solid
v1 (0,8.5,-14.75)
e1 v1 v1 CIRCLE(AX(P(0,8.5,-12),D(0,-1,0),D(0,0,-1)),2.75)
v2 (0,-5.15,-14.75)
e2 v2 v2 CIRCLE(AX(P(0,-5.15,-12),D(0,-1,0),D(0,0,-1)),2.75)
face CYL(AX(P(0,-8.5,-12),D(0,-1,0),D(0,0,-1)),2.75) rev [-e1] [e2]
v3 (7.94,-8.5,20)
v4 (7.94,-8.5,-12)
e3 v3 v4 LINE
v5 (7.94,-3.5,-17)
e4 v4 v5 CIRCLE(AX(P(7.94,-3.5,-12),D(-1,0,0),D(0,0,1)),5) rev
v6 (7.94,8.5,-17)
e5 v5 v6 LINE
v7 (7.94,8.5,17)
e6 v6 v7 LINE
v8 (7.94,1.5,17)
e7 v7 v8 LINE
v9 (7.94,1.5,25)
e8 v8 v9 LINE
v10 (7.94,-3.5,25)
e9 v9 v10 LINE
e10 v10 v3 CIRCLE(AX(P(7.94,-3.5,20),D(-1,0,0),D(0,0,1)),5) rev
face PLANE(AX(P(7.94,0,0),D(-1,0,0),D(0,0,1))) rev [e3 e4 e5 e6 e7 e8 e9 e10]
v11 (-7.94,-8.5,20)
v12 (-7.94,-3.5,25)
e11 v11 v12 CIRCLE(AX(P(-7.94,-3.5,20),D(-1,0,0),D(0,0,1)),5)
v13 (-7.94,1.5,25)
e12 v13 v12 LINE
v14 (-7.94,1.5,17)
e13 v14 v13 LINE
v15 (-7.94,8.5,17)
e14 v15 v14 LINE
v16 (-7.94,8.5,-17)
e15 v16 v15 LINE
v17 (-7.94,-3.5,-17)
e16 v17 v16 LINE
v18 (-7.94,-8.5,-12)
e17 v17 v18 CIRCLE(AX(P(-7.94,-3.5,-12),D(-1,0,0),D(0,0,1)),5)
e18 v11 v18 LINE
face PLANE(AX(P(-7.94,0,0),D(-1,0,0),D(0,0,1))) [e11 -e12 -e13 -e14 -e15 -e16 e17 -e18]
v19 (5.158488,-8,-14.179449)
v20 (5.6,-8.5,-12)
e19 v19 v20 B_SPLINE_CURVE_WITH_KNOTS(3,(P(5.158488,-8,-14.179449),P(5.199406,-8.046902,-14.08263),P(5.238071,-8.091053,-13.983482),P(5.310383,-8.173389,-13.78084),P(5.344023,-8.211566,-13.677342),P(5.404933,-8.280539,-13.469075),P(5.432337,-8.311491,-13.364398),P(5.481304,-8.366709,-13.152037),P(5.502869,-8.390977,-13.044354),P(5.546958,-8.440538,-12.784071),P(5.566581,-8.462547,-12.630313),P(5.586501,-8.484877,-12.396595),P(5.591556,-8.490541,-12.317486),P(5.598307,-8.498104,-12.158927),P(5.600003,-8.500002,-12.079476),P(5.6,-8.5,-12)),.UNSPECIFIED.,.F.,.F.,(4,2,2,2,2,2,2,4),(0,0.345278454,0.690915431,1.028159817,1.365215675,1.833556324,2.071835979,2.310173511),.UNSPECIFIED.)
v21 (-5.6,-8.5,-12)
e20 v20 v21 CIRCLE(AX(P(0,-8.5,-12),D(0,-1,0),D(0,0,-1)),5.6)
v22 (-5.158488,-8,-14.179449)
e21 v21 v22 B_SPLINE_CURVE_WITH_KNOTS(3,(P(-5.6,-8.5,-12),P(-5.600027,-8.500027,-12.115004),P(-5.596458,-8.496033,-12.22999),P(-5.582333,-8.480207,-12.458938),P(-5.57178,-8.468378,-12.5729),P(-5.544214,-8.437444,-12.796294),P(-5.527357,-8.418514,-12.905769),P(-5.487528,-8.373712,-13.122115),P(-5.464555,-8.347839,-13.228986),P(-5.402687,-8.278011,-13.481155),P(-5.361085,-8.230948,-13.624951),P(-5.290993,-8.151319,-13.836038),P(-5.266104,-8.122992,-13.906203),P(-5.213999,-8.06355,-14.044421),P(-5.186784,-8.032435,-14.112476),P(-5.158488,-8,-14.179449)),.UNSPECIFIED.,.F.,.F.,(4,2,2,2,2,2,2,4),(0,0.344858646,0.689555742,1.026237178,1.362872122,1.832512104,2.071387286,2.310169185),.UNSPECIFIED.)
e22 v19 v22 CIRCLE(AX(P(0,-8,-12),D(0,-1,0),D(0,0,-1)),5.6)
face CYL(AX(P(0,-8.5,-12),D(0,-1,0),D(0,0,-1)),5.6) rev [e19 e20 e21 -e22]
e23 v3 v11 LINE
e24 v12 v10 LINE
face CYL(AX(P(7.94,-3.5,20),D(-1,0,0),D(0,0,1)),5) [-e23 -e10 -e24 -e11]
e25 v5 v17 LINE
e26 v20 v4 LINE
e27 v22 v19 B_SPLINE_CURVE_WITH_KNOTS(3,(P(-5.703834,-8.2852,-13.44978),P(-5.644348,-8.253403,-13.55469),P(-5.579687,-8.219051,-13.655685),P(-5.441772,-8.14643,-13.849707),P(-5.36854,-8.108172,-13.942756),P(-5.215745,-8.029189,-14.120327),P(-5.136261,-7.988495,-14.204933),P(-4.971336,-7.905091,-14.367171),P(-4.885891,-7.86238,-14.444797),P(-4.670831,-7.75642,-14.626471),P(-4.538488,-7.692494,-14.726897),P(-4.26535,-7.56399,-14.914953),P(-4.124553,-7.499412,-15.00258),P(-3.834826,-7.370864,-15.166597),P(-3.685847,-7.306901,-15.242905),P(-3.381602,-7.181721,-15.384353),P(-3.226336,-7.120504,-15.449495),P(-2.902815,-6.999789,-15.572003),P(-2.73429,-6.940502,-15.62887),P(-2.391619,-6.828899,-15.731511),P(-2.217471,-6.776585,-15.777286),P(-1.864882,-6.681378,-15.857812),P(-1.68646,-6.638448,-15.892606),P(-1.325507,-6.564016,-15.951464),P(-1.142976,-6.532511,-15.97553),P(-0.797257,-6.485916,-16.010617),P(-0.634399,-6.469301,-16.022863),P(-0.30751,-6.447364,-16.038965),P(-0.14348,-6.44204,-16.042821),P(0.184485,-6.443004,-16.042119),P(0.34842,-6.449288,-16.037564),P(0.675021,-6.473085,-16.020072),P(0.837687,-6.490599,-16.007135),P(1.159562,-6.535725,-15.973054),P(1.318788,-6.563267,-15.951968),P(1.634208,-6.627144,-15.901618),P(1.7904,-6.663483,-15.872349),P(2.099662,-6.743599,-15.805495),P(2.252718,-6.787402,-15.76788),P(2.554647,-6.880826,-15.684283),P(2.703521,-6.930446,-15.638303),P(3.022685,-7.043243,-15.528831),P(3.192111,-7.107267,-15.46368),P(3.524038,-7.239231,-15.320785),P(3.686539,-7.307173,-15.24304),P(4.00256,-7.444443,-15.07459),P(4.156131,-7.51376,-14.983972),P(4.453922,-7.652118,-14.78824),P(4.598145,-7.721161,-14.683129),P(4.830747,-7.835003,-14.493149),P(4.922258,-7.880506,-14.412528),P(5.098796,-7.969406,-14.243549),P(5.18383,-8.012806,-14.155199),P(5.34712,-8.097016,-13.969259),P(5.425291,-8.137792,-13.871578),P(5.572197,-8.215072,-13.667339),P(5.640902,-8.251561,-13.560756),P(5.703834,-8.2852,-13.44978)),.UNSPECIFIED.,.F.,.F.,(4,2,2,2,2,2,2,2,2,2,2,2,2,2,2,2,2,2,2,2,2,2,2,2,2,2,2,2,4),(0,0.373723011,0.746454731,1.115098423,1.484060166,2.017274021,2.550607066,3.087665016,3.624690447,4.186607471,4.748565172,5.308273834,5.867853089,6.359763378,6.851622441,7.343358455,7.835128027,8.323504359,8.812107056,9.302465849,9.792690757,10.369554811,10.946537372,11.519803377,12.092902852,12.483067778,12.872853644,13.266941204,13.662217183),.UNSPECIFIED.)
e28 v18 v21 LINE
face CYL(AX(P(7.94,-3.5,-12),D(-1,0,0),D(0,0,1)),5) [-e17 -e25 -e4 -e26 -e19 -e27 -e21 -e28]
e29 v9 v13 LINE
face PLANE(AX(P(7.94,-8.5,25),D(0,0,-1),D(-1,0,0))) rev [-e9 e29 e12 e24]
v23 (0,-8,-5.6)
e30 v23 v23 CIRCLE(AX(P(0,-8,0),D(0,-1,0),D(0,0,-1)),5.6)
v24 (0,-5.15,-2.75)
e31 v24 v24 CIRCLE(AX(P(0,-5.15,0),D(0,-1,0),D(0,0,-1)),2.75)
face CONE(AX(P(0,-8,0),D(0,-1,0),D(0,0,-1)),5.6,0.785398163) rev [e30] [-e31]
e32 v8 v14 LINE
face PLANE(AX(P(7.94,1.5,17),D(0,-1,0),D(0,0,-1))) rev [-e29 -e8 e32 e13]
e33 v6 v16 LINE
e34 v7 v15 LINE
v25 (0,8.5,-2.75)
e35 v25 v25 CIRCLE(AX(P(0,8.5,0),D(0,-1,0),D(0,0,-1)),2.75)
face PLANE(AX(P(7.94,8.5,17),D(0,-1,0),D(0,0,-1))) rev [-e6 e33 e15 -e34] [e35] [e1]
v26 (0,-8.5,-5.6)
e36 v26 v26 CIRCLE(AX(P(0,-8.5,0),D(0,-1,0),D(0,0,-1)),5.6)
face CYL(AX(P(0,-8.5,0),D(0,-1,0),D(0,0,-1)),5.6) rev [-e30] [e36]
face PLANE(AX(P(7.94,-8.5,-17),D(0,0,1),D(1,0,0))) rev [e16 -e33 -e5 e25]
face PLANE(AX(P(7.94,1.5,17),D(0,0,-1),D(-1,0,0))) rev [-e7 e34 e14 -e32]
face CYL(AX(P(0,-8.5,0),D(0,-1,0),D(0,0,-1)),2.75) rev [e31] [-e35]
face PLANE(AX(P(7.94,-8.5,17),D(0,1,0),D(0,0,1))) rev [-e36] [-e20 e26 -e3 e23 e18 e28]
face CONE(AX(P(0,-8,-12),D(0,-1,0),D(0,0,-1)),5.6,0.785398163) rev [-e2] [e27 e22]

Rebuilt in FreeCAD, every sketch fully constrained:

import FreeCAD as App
import Part
import Sketcher
from FreeCAD import Vector
Q = App.Units.Quantity


def edges_at(feature, points):
    """Names of the edges that pass closest to the given points."""
    edges = feature.Shape.Edges
    near = lambda p: min(range(len(edges)), key=lambda i: edges[i].distToShape(Part.Vertex(*p))[0])
    return sorted({f"Edge{near(p) + 1}" for p in points})

doc = App.newDocument("Part")
body = doc.addObject("PartDesign::Body", "Body")

# Sketch on YZ plane
sketch1 = body.newObject("Sketcher::SketchObject", "Sketch")
sketch1.AttachmentSupport = (doc.getObject("YZ_Plane"), [""])
sketch1.MapMode = "FlatFace"
sketch1.addGeometry([
    Part.LineSegment(Vector(-8, -17, 0), Vector(8, -17, 0)),  # 0
    Part.LineSegment(Vector(8, -17, 0), Vector(8, 17, 0)),  # 1
    Part.LineSegment(Vector(8, 17, 0), Vector(2, 17, 0)),  # 2
    Part.LineSegment(Vector(2, 17, 0), Vector(2, 25, 0)),  # 3
    Part.LineSegment(Vector(2, 25, 0), Vector(-8, 25, 0)),  # 4
    Part.LineSegment(Vector(-8, 25, 0), Vector(-8, -17, 0)),  # 5
], False)
sketch1.addConstraint([
    Sketcher.Constraint("Coincident", 0, 2, 1, 1),
    Sketcher.Constraint("Coincident", 1, 2, 2, 1),
    Sketcher.Constraint("Coincident", 2, 2, 3, 1),
    Sketcher.Constraint("Coincident", 3, 2, 4, 1),
    Sketcher.Constraint("Coincident", 4, 2, 5, 1),
    Sketcher.Constraint("Coincident", 5, 2, 0, 1),
    Sketcher.Constraint("Horizontal", 0),
    Sketcher.Constraint("Vertical", 1),
    Sketcher.Constraint("Horizontal", 2),
    Sketcher.Constraint("Vertical", 3),
    Sketcher.Constraint("Horizontal", 4),
    Sketcher.Constraint("Vertical", 5),
    Sketcher.Constraint("Symmetric", 1, 2, 5, 2, -1, 1),
    Sketcher.Constraint("DistanceX", 0, 1, 0, 2, Q("17 mm")),
    Sketcher.Constraint("DistanceX", 2, 2, 2, 1, Q("7 mm")),
    Sketcher.Constraint("DistanceY", 1, 1, 1, 2, Q("34 mm")),
    Sketcher.Constraint("DistanceY", 3, 1, 3, 2, Q("8 mm")),
])
pad1 = body.newObject("PartDesign::Pad", "Pad")
pad1.Profile = sketch1
pad1.Length = 15.88
pad1.Midplane = True
doc.recompute()

fillet = body.newObject("PartDesign::Fillet", "Fillet")
fillet.Base = (pad1, edges_at(pad1, [(0, -8.5, -17), (0, -8.5, 25)]))
fillet.Radius = 5

# Sketch on YZ plane
sketch2 = body.newObject("Sketcher::SketchObject", "Sketch001")
sketch2.AttachmentSupport = (doc.getObject("YZ_Plane"), [""])
sketch2.MapMode = "FlatFace"
sketch2.addGeometry([
    Part.LineSegment(Vector(23.2, -12, 0), Vector(-8.5, -12, 0)),  # 0
    Part.LineSegment(Vector(-8.5, -12, 0), Vector(-8.5, -17.6, 0)),  # 1
    Part.LineSegment(Vector(-8.5, -17.6, 0), Vector(-8, -17.6, 0)),  # 2
    Part.LineSegment(Vector(-8, -17.6, 0), Vector(-5.2, -14.8, 0)),  # 3
    Part.LineSegment(Vector(-5.2, -14.8, 0), Vector(21.5, -14.8, 0)),  # 4
    Part.LineSegment(Vector(21.5, -14.8, 0), Vector(23.2, -12, 0)),  # 5
], False)
sketch2.addGeometry(Part.LineSegment(Vector(-8.5, -12, 0), Vector(23.2, -12, 0)), True)  # axis
sketch2.addConstraint([
    Sketcher.Constraint("Coincident", 0, 2, 1, 1),
    Sketcher.Constraint("Coincident", 1, 2, 2, 1),
    Sketcher.Constraint("Coincident", 2, 2, 3, 1),
    Sketcher.Constraint("Coincident", 3, 2, 4, 1),
    Sketcher.Constraint("Coincident", 4, 2, 5, 1),
    Sketcher.Constraint("Coincident", 5, 2, 0, 1),
    Sketcher.Constraint("Horizontal", 0),
    Sketcher.Constraint("Vertical", 1),
    Sketcher.Constraint("Horizontal", 2),
    Sketcher.Constraint("Horizontal", 4),
    Sketcher.Constraint("Horizontal", 6),
    Sketcher.Constraint("Coincident", 6, 1, 0, 2),
    Sketcher.Constraint("Equal", 0, 6),
    Sketcher.Constraint("Angle", 3, Q("45 deg")),
    Sketcher.Constraint("Angle", 5, Q("59 deg")),
    Sketcher.Constraint("DistanceX", 2, 1, 2, 2, Q("0.5 mm")),
    Sketcher.Constraint("DistanceY", 1, 2, 1, 1, Q("5.6 mm")),
    Sketcher.Constraint("DistanceY", 0, 2, -1, 1, Q("12 mm")),
    Sketcher.Constraint("DistanceX", 2, 2, -1, 1, Q("8 mm")),
    Sketcher.Constraint("DistanceX", 0, 2, 4, 2, Q("30 mm")),
    Sketcher.Constraint("DistanceX", 4, 1, 4, 2, Q("26.65 mm")),
])
groove = body.newObject("PartDesign::Groove", "Groove")
groove.Profile = sketch2
groove.ReferenceAxis = (sketch2, ["Axis0"])
groove.Angle = 360
doc.recompute()

linearpattern = body.newObject("PartDesign::LinearPattern", "LinearPattern")
linearpattern.Originals = [groove]
linearpattern.Direction = (doc.getObject("Z_Axis"), [""])
linearpattern.Mode = "offset"
linearpattern.Offset = 12
linearpattern.Occurrences = 2
body.Tip = linearpattern
doc.recompute()

datumline = body.newObject("PartDesign::Line", "DatumLine")
datumline.Placement = App.Placement(Vector(0, 0, 0), App.Rotation(Vector(0, 0, 1), Vector(-0.983931747, 0, 0.178545002)))
linearpattern2 = body.newObject("PartDesign::LinearPattern", "LinearPattern001")
linearpattern2.Originals = [groove]
linearpattern2.Direction = (datumline, [""])
linearpattern2.Mode = "offset"
linearpattern2.Offset = 67.209946
linearpattern2.Occurrences = 2
body.Tip = linearpattern2
doc.recompute()

linearpattern3 = body.newObject("PartDesign::LinearPattern", "LinearPattern002")
linearpattern3.Originals = [groove]
linearpattern3.Direction = (doc.getObject("X_Axis"), [""])
linearpattern3.Mode = "offset"
linearpattern3.Offset = 66.13
linearpattern3.Occurrences = 2
linearpattern3.Reversed = True
body.Tip = linearpattern3

doc.recompute()
